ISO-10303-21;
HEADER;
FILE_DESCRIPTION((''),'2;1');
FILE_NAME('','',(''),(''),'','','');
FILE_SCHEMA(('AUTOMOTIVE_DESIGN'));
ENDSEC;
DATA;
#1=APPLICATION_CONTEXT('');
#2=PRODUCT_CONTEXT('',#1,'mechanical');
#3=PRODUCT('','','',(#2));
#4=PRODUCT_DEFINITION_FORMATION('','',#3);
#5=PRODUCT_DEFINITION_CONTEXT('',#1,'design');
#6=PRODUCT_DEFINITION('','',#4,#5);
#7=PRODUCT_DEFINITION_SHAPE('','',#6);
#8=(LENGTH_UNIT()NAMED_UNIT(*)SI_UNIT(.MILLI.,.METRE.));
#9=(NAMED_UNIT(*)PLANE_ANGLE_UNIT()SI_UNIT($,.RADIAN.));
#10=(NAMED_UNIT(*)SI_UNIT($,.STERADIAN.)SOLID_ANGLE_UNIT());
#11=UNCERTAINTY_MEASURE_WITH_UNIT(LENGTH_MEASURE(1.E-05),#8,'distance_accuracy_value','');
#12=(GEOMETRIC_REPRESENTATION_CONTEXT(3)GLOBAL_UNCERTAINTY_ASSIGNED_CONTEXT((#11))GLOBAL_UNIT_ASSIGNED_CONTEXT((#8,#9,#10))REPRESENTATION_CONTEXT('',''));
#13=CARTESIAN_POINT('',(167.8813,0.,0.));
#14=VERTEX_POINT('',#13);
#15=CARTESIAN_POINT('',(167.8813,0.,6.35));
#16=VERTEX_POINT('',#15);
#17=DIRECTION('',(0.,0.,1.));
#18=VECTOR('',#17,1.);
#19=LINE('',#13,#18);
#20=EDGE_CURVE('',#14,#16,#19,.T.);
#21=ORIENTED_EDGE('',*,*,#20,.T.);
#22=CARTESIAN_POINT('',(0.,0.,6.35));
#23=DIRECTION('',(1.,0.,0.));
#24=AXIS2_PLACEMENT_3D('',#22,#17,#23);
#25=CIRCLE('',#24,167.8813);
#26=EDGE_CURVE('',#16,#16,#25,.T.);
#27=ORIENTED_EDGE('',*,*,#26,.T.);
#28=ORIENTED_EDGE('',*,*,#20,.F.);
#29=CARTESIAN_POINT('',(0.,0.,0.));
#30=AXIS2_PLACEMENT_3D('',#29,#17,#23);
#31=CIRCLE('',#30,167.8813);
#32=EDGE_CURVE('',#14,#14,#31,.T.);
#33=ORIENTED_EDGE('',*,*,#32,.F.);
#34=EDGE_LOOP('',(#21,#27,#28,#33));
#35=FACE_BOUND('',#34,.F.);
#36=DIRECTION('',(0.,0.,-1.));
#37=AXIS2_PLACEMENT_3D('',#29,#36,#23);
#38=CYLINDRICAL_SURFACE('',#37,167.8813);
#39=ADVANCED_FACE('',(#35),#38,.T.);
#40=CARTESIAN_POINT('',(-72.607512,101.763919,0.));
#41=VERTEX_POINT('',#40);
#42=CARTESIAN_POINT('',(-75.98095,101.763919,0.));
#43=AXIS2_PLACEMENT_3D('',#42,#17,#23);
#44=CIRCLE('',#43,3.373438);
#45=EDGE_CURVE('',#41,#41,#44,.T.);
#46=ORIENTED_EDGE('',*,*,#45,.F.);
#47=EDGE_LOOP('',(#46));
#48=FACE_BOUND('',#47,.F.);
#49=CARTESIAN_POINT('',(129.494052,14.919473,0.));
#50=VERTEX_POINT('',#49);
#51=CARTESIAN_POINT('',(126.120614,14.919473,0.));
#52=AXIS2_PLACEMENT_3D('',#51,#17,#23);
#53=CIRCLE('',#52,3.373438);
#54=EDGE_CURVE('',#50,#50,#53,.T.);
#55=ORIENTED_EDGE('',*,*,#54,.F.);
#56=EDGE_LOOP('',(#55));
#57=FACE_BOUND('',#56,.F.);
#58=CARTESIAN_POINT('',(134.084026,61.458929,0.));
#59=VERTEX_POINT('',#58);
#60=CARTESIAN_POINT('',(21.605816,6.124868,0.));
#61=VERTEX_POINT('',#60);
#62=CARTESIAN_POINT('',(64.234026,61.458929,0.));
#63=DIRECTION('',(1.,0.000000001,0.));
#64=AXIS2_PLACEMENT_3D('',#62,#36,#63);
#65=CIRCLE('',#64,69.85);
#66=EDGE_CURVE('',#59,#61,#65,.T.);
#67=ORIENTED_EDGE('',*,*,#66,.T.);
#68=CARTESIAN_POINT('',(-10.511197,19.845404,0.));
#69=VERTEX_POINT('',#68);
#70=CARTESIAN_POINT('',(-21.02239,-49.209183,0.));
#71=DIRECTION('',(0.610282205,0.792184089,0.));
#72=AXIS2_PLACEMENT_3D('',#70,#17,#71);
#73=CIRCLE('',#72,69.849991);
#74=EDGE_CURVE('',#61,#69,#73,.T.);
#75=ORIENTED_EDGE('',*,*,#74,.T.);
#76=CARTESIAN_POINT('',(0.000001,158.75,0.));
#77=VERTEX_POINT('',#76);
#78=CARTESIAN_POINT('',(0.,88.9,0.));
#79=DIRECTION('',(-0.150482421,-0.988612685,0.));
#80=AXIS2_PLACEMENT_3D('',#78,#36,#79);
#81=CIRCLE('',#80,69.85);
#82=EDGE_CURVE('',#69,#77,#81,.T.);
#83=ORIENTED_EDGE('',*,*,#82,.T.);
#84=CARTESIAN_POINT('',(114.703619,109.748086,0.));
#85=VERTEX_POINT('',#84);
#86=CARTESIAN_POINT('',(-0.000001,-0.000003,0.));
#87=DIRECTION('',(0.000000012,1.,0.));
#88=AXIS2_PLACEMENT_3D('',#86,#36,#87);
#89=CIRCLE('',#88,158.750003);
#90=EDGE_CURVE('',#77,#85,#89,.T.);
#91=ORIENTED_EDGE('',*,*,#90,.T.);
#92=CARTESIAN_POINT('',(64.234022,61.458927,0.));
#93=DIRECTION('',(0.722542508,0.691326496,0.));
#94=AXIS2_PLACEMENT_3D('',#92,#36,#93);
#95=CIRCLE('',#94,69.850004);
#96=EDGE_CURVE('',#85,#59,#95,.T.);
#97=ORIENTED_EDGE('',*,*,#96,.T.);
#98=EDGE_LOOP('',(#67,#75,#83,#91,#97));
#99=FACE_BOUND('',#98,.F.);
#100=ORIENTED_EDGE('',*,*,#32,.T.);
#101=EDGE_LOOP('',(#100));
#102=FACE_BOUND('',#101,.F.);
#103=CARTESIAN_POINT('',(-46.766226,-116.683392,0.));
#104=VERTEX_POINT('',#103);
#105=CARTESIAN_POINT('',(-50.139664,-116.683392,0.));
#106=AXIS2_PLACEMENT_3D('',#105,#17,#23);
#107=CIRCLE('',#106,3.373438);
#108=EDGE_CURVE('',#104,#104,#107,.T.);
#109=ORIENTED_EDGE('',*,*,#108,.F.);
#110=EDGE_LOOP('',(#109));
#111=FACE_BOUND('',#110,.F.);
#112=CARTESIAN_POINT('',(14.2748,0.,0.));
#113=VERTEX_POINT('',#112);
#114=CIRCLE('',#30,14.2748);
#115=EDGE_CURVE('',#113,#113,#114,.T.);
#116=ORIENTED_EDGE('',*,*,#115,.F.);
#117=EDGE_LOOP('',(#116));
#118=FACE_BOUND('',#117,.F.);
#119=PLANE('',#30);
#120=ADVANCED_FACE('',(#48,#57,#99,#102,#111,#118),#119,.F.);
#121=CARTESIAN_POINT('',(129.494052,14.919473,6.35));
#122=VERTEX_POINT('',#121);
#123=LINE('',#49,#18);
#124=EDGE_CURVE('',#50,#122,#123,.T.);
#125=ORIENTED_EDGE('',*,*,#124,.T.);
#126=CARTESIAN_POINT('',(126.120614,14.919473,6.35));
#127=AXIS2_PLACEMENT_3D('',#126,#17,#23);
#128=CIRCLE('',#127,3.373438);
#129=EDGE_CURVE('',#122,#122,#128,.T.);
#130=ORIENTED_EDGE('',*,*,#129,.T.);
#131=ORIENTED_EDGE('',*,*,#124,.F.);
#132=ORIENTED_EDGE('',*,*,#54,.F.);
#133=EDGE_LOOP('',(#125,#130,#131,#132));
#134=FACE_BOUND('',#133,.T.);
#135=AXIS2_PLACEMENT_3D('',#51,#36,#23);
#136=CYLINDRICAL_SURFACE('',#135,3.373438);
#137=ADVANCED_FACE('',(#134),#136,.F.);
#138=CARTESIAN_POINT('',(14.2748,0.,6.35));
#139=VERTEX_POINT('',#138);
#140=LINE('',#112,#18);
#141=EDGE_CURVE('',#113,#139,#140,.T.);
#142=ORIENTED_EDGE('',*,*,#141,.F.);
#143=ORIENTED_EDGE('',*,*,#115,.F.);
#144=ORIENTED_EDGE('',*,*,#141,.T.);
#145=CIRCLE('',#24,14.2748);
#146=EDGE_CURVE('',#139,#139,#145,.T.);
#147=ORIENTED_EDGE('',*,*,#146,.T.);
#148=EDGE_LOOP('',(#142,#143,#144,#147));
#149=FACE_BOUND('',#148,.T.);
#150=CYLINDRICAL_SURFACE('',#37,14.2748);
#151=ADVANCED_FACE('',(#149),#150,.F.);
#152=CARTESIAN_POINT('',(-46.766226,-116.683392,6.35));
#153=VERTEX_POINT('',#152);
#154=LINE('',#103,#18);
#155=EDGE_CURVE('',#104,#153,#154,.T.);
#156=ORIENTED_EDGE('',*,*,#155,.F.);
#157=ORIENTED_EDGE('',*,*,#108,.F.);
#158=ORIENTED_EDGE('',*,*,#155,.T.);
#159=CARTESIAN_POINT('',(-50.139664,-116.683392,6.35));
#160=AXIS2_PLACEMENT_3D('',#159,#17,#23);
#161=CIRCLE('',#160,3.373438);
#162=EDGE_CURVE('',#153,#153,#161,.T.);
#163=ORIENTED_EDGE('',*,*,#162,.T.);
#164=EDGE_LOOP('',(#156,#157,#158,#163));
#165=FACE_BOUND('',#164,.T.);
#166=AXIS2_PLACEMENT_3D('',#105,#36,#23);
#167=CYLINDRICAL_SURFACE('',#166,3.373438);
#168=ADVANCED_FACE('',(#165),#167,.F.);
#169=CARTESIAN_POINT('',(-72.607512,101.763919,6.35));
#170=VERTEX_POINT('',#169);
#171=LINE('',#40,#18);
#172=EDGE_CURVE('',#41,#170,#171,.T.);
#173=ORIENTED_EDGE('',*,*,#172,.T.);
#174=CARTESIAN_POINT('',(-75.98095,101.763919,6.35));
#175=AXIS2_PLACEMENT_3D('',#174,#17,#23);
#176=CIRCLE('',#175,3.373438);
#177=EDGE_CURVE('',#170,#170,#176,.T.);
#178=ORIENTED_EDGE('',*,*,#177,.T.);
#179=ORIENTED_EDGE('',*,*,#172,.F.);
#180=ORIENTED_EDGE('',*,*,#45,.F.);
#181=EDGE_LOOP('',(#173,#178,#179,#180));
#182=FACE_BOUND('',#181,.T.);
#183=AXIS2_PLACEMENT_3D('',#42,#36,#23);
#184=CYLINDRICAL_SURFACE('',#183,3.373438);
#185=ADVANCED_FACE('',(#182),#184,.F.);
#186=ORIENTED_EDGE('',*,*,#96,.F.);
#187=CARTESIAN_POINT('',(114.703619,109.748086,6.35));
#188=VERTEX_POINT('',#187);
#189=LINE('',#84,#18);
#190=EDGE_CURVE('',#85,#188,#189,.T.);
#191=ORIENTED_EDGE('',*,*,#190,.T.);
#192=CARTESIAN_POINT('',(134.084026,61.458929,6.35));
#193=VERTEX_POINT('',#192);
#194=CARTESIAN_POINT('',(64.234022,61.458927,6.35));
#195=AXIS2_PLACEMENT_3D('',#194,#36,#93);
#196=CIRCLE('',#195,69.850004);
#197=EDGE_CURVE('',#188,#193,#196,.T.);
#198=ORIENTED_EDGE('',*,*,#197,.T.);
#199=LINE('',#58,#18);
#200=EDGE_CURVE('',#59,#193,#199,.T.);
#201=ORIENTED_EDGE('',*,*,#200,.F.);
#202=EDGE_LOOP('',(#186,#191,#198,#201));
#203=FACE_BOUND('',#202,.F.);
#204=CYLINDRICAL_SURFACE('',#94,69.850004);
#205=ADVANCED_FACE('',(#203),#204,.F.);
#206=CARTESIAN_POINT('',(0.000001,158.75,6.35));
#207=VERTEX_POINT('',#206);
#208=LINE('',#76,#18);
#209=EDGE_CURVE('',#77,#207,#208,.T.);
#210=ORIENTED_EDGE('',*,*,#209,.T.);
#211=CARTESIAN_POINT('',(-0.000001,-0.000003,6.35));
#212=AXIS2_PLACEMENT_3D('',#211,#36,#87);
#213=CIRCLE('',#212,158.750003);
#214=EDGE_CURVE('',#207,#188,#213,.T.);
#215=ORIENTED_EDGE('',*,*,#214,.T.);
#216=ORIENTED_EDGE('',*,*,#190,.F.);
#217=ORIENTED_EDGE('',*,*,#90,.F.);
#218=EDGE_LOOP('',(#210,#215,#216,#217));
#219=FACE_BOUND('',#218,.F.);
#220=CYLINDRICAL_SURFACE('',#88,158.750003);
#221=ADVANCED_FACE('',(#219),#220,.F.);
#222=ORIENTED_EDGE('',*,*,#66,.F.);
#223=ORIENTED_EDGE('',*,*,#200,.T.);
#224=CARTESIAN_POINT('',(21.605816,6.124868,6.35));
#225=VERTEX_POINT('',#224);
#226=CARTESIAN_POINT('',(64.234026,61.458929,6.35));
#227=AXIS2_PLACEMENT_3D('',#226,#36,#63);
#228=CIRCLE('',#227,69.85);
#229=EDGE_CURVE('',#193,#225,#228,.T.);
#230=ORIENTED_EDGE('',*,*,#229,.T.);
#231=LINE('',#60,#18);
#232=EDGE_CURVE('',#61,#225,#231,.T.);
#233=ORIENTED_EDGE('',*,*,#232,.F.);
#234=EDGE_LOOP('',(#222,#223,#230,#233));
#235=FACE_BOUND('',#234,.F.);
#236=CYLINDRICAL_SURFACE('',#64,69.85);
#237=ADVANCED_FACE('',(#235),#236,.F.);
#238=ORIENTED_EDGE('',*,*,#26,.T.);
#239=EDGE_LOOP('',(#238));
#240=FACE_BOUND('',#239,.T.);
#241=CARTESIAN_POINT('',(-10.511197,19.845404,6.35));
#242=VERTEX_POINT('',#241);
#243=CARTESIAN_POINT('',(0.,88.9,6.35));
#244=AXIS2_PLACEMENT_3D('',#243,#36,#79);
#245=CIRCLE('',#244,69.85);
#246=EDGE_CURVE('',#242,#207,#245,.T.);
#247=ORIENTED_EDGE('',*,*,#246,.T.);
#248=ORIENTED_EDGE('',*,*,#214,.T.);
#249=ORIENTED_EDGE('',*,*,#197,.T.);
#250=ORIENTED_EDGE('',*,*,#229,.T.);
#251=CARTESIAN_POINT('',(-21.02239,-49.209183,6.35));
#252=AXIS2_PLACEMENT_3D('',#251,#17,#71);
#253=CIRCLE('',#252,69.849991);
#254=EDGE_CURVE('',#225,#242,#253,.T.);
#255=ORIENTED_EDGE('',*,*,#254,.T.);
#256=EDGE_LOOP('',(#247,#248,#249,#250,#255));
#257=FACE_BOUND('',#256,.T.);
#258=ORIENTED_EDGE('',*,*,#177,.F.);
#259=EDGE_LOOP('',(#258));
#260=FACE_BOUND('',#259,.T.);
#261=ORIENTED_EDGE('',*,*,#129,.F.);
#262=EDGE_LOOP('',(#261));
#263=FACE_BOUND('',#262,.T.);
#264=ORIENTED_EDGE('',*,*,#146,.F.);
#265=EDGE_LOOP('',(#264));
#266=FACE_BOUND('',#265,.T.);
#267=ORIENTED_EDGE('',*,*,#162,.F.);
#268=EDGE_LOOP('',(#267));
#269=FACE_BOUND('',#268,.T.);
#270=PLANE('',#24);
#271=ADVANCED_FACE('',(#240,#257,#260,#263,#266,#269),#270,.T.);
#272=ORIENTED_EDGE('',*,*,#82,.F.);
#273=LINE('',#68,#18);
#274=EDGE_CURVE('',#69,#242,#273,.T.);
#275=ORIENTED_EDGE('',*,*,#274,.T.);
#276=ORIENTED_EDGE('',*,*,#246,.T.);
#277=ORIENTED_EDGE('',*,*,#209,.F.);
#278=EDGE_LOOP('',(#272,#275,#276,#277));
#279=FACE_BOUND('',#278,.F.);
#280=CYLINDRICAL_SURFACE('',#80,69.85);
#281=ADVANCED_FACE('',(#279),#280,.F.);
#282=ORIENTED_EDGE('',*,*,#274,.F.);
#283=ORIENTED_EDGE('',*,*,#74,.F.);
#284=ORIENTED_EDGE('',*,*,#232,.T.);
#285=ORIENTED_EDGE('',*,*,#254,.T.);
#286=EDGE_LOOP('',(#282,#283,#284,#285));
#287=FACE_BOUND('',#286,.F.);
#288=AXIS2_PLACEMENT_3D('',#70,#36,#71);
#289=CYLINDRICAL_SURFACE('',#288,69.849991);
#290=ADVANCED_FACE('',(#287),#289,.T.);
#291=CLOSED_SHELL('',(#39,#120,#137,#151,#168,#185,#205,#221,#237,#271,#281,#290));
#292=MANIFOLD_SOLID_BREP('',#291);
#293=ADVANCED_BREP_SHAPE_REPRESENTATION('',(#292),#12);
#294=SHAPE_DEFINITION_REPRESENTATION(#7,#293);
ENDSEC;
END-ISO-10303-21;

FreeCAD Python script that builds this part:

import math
import FreeCAD as App
import Part
import Sketcher
Q = App.Units.Quantity

doc = App.newDocument("Part")
body = doc.addObject("PartDesign::Body", "Body")

sketch1 = body.newObject("Sketcher::SketchObject", "Sketch")
sketch1.AttachmentSupport = (doc.getObject("XY_Plane"), [""])
sketch1.MapMode = "FlatFace"
sketch1.addGeometry(Part.Circle(App.Vector(0, 0, 0), App.Vector(0, 0, 1), 167.9), False)
sketch1.addGeometry(Part.Circle(App.Vector(-50.1, -116.7, 0), App.Vector(0, 0, 1), 3.4), False)
sketch1.addGeometry(Part.Circle(App.Vector(0, 0, 0), App.Vector(0, 0, 1), 14.3), False)
sketch1.addGeometry(Part.Circle(App.Vector(126.1, 14.9, 0), App.Vector(0, 0, 1), 3.4), False)
sketch1.addGeometry(Part.Circle(App.Vector(-76, 101.8, 0), App.Vector(0, 0, 1), 3.4), False)
sketch1.addGeometry(Part.ArcOfCircle(Part.Circle(App.Vector(0, 0, 0), App.Vector(0, 0, 1), 158.8), math.radians(44), math.radians(90)), False)
sketch1.addGeometry(Part.ArcOfCircle(Part.Circle(App.Vector(64.2, 61.5, 0), App.Vector(0, 0, 1), 69.9), math.radians(0), math.radians(44)), False)
sketch1.addGeometry(Part.ArcOfCircle(Part.Circle(App.Vector(64.2, 61.5, 0), App.Vector(0, 0, 1), 69.9), math.radians(-128), math.radians(0)), False)
sketch1.addGeometry(Part.ArcOfCircle(Part.Circle(App.Vector(-21, -49.2, 0), App.Vector(0, 0, 1), 69.8), math.radians(52), math.radians(81)), False)
sketch1.addGeometry(Part.ArcOfCircle(Part.Circle(App.Vector(0, 88.9, 0), App.Vector(0, 0, 1), 69.8), math.radians(90), math.radians(261)), False)
sketch1.addConstraint(Sketcher.Constraint("Tangent", 5, 1, 6, 2))
sketch1.addConstraint(Sketcher.Constraint("Tangent", 6, 1, 7, 2))
sketch1.addConstraint(Sketcher.Constraint("Tangent", 7, 1, 8, 1))
sketch1.addConstraint(Sketcher.Constraint("Tangent", 8, 2, 9, 2))
sketch1.addConstraint(Sketcher.Constraint("Tangent", 9, 1, 5, 2))
sketch1.addConstraint(Sketcher.Constraint("Coincident", 0, 3, -1, 1))
sketch1.addConstraint(Sketcher.Constraint("Coincident", 2, 3, -1, 1))
sketch1.addConstraint(Sketcher.Constraint("Coincident", 5, 3, -1, 1))
sketch1.addConstraint(Sketcher.Constraint("Equal", 1, 3))
sketch1.addConstraint(Sketcher.Constraint("Equal", 3, 4))
sketch1.addConstraint(Sketcher.Constraint("Equal", 7, 9))
sketch1.addConstraint(Sketcher.Constraint("PointOnObject", 9, 3, -2))
sketch1.addConstraint(Sketcher.Constraint("Horizontal", 7, 3, 6, 1))
sketch1.addConstraint(Sketcher.Constraint("Radius", 5, Q("6.2500001 in")))
sketch1.addConstraint(Sketcher.Constraint("Radius", 6, Q("2.7500002 in")))
sketch1.addConstraint(Sketcher.Constraint("Radius", 7, Q("2.75 in")))
sketch1.addConstraint(Sketcher.Constraint("Diameter", 0, Q("13.219 in")))
sketch1.addConstraint(Sketcher.Constraint("Diameter", 1, Q("0.265625 in")))
sketch1.addConstraint(Sketcher.Constraint("Diameter", 2, Q("1.124 in")))
sketch1.addConstraint(Sketcher.Constraint("Radius", 8, 69.849991))
sketch1.addConstraint(Sketcher.Constraint("DistanceY", 1, 3, -1, 1, 116.683392))
sketch1.addConstraint(Sketcher.Constraint("DistanceX", 4, 3, -1, 1, 75.98095))
sketch1.addConstraint(Sketcher.Constraint("DistanceY", -1, 1, 4, 3, 101.763919))
sketch1.addConstraint(Sketcher.Constraint("DistanceX", -1, 1, 6, 3, 64.234022))
sketch1.addConstraint(Sketcher.Constraint("DistanceX", 1, 3, 3, 3, 176.260278))
sketch1.addConstraint(Sketcher.Constraint("DistanceX", 7, 3, 3, 3, 61.886588))
sketch1.addConstraint(Sketcher.Constraint("DistanceY", -1, 1, 3, 3, 14.919473))
pad1 = body.newObject("PartDesign::Pad", "Pad")
pad1.Profile = sketch1
pad1.Length = Q("0.25 in")

doc.recompute()
